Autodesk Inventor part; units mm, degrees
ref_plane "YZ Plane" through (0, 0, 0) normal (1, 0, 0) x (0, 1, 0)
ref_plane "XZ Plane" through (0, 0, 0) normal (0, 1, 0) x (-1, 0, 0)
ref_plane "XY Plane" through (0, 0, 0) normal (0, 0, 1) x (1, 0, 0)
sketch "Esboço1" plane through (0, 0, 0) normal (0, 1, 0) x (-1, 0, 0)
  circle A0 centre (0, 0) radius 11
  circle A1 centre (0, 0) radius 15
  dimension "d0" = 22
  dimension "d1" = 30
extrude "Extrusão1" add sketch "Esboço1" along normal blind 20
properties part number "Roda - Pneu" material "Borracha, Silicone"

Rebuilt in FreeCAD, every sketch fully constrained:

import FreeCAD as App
import Part
import Sketcher

V = App.Vector
Q = App.Units.Quantity

doc = App.newDocument("Part")
body = doc.addObject("PartDesign::Body", "Body")

sketch1 = body.newObject("Sketcher::SketchObject", "Sketch")
sketch1.AttachmentSupport = (doc.getObject("XZ_Plane"), [""])
sketch1.MapMode = "FlatFace"
sketch1.addGeometry([
    Part.Circle(V(0, 0, 0), V(0, 0, 1), 15),
    Part.Circle(V(0, 0, 0), V(0, 0, 1), 11),
], False)
sketch1.addConstraint([
    Sketcher.Constraint("Coincident", 0, 3, -1, 1),
    Sketcher.Constraint("Coincident", 1, 3, -1, 1),
    Sketcher.Constraint("Diameter", 0, Q("30 mm")),
    Sketcher.Constraint("Diameter", 1, Q("22 mm")),
])
pad1 = body.newObject("PartDesign::Pad", "Pad")
pad1.Profile = sketch1
pad1.Length = 20
pad1.Reversed = True

doc.recompute()
